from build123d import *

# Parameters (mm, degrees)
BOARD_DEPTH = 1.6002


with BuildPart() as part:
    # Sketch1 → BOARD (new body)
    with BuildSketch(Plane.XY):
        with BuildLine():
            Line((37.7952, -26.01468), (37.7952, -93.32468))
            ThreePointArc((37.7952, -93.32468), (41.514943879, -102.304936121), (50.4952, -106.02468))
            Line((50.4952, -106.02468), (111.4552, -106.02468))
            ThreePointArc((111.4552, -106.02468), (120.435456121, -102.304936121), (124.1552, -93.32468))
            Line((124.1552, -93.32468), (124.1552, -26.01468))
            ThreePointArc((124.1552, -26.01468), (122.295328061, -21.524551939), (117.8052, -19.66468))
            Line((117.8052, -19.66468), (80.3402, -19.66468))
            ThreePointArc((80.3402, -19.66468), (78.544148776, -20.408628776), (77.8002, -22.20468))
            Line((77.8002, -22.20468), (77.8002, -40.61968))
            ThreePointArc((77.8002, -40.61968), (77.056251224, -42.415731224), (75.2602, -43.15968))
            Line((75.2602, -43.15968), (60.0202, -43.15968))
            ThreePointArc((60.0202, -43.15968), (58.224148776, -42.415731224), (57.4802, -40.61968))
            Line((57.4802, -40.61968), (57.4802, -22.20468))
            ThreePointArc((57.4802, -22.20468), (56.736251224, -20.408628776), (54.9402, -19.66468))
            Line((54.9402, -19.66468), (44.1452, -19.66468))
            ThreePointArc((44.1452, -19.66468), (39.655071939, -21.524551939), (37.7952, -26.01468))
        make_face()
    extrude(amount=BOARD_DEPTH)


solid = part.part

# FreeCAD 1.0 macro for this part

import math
import FreeCAD as App
import Part
import Sketcher
Q = App.Units.Quantity

doc = App.newDocument("Part")
body = doc.addObject("PartDesign::Body", "Body")

sketch1 = body.newObject("Sketcher::SketchObject", "Sketch")
sketch1.AttachmentSupport = (doc.getObject("XY_Plane"), [""])
sketch1.MapMode = "FlatFace"
sketch1.addGeometry(Part.LineSegment(App.Vector(37.7952, -26.01468, 0), App.Vector(37.7952, -93.32468, 0)), False)
sketch1.addGeometry(Part.ArcOfCircle(Part.Circle(App.Vector(50.4952, -93.32468, 0), App.Vector(0, 0, 1), 12.7), math.radians(180), math.radians(270)), False)
sketch1.addGeometry(Part.LineSegment(App.Vector(50.4952, -106.02468, 0), App.Vector(111.4552, -106.02468, 0)), False)
sketch1.addGeometry(Part.ArcOfCircle(Part.Circle(App.Vector(111.4552, -93.32468, 0), App.Vector(0, 0, 1), 12.7), math.radians(-90), math.radians(0)), False)
sketch1.addGeometry(Part.LineSegment(App.Vector(124.1552, -93.32468, 0), App.Vector(124.1552, -26.01468, 0)), False)
sketch1.addGeometry(Part.ArcOfCircle(Part.Circle(App.Vector(117.8052, -26.01468, 0), App.Vector(0, 0, 1), 6.35), math.radians(0), math.radians(90)), False)
sketch1.addGeometry(Part.LineSegment(App.Vector(117.8052, -19.66468, 0), App.Vector(80.3402, -19.66468, 0)), False)
sketch1.addGeometry(Part.ArcOfCircle(Part.Circle(App.Vector(80.3402, -22.20468, 0), App.Vector(0, 0, 1), 2.54), math.radians(90), math.radians(180)), False)
sketch1.addGeometry(Part.LineSegment(App.Vector(77.8002, -22.20468, 0), App.Vector(77.8002, -40.61968, 0)), False)
sketch1.addGeometry(Part.ArcOfCircle(Part.Circle(App.Vector(75.2602, -40.61968, 0), App.Vector(0, 0, 1), 2.54), math.radians(-90), math.radians(0)), False)
sketch1.addGeometry(Part.LineSegment(App.Vector(75.2602, -43.15968, 0), App.Vector(60.0202, -43.15968, 0)), False)
sketch1.addGeometry(Part.ArcOfCircle(Part.Circle(App.Vector(60.0202, -40.61968, 0), App.Vector(0, 0, 1), 2.54), math.radians(-180), math.radians(-90)), False)
sketch1.addGeometry(Part.LineSegment(App.Vector(57.4802, -40.61968, 0), App.Vector(57.4802, -22.20468, 0)), False)
sketch1.addGeometry(Part.ArcOfCircle(Part.Circle(App.Vector(54.9402, -22.20468, 0), App.Vector(0, 0, 1), 2.54), math.radians(0), math.radians(90)), False)
sketch1.addGeometry(Part.LineSegment(App.Vector(54.9402, -19.66468, 0), App.Vector(44.1452, -19.66468, 0)), False)
sketch1.addGeometry(Part.ArcOfCircle(Part.Circle(App.Vector(44.1452, -26.01468, 0), App.Vector(0, 0, 1), 6.35), math.radians(90), math.radians(180)), False)
sketch1.addConstraint(Sketcher.Constraint("Tangent", 0, 2, 1, 1))
sketch1.addConstraint(Sketcher.Constraint("Tangent", 1, 2, 2, 1))
sketch1.addConstraint(Sketcher.Constraint("Tangent", 2, 2, 3, 1))
sketch1.addConstraint(Sketcher.Constraint("Tangent", 3, 2, 4, 1))
sketch1.addConstraint(Sketcher.Constraint("Tangent", 4, 2, 5, 1))
sketch1.addConstraint(Sketcher.Constraint("Tangent", 5, 2, 6, 1))
sketch1.addConstraint(Sketcher.Constraint("Tangent", 6, 2, 7, 1))
sketch1.addConstraint(Sketcher.Constraint("Tangent", 7, 2, 8, 1))
sketch1.addConstraint(Sketcher.Constraint("Tangent", 8, 2, 9, 2))
sketch1.addConstraint(Sketcher.Constraint("Tangent", 9, 1, 10, 1))
sketch1.addConstraint(Sketcher.Constraint("Tangent", 10, 2, 11, 2))
sketch1.addConstraint(Sketcher.Constraint("Tangent", 11, 1, 12, 1))
sketch1.addConstraint(Sketcher.Constraint("Tangent", 12, 2, 13, 1))
sketch1.addConstraint(Sketcher.Constraint("Tangent", 13, 2, 14, 1))
sketch1.addConstraint(Sketcher.Constraint("Tangent", 14, 2, 15, 1))
sketch1.addConstraint(Sketcher.Constraint("Tangent", 15, 2, 0, 1))
sketch1.addConstraint(Sketcher.Constraint("Vertical", 0))
sketch1.addConstraint(Sketcher.Constraint("Horizontal", 2))
sketch1.addConstraint(Sketcher.Constraint("Vertical", 4))
sketch1.addConstraint(Sketcher.Constraint("Horizontal", 6))
sketch1.addConstraint(Sketcher.Constraint("Vertical", 8))
sketch1.addConstraint(Sketcher.Constraint("Horizontal", 10))
sketch1.addConstraint(Sketcher.Constraint("Vertical", 12))
sketch1.addConstraint(Sketcher.Constraint("Horizontal", 14))
sketch1.addConstraint(Sketcher.Constraint("Equal", 1, 3))
sketch1.addConstraint(Sketcher.Constraint("Equal", 7, 9))
sketch1.addConstraint(Sketcher.Constraint("Equal", 9, 11))
sketch1.addConstraint(Sketcher.Constraint("Equal", 11, 13))
sketch1.addConstraint(Sketcher.Constraint("Equal", 5, 15))
sketch1.addConstraint(Sketcher.Constraint("Horizontal", 7, 3, 13, 3))
sketch1.addConstraint(Sketcher.Constraint("Radius", 1, Q("0.5 in")))
sketch1.addConstraint(Sketcher.Constraint("Radius", 7, Q("0.1 in")))
sketch1.addConstraint(Sketcher.Constraint("Radius", 5, Q("0.25 in")))
sketch1.addConstraint(Sketcher.Constraint("DistanceX", 2, 1, 2, 2, Q("2.4 in")))
sketch1.addConstraint(Sketcher.Constraint("DistanceX", 10, 2, 10, 1, Q("0.6 in")))
sketch1.addConstraint(Sketcher.Constraint("DistanceY", 0, 2, 0, 1, Q("2.65 in")))
sketch1.addConstraint(Sketcher.Constraint("DistanceX", 6, 2, 6, 1, Q("1.475 in")))
sketch1.addConstraint(Sketcher.Constraint("DistanceY", 8, 2, 8, 1, Q("0.725 in")))
sketch1.addConstraint(Sketcher.Constraint("DistanceX", -1, 1, 1, 3, Q("1.988 in")))
sketch1.addConstraint(Sketcher.Constraint("DistanceY", 1, 3, -1, 1, Q("3.6742 in")))
pad1 = body.newObject("PartDesign::Pad", "Pad")
pad1.Profile = sketch1
pad1.Length = Q("0.063 in")

doc.recompute()
